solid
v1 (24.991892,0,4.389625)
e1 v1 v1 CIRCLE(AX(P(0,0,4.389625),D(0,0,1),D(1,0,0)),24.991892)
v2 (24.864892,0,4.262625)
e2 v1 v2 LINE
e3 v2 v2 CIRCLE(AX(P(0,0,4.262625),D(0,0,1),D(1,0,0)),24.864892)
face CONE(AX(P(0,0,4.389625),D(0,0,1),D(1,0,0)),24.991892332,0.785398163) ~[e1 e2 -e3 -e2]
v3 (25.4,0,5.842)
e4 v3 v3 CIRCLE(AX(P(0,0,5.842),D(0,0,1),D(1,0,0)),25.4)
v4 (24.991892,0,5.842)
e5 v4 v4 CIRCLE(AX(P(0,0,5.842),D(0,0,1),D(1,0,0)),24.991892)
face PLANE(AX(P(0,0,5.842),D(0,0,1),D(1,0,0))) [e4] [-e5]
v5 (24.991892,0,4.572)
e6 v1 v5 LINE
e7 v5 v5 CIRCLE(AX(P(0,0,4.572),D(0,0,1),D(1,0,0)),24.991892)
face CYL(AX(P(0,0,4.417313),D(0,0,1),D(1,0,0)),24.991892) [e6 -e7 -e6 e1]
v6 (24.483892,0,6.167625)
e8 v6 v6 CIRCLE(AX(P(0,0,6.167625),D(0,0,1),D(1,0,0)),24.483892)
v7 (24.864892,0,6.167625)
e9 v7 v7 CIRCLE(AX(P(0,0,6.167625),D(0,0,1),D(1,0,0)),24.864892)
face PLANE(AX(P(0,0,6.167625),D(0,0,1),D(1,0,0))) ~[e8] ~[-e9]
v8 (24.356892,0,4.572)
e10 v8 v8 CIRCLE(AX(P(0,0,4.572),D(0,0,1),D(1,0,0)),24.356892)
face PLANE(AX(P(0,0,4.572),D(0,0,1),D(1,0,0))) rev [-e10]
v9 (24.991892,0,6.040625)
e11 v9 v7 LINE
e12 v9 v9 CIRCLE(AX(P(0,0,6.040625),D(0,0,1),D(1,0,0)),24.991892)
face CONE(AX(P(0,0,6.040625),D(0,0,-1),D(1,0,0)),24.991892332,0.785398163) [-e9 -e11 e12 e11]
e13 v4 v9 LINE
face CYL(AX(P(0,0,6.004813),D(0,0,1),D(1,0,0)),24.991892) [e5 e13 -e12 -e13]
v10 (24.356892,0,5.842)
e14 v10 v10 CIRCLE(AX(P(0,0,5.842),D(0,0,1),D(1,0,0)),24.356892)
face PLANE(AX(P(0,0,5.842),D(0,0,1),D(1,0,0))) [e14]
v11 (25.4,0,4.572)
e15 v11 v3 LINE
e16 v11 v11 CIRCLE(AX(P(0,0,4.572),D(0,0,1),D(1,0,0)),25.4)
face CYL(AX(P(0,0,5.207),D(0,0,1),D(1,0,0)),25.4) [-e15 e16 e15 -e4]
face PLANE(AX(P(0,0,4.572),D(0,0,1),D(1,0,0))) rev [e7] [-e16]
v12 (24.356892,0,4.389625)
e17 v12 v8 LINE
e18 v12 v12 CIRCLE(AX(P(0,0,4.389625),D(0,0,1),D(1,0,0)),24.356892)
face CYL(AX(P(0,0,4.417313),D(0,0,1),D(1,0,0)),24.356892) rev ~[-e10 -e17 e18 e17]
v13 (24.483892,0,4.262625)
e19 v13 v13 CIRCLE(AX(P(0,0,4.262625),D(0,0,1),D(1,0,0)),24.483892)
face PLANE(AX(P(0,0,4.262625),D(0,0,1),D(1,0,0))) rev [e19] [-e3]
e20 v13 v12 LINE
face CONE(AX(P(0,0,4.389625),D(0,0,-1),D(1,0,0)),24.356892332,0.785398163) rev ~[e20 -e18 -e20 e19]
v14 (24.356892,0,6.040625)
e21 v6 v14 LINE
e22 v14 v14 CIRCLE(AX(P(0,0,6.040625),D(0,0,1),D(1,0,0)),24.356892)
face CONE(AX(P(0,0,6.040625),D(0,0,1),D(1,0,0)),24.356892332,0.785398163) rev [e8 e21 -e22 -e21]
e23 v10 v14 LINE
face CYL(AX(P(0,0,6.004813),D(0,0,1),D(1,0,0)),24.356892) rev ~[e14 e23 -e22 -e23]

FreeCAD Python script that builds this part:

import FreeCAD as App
import Part
import Sketcher
Q = App.Units.Quantity


def edges_at(feature, points):
    """Names of the edges that pass closest to the given points."""
    edges = feature.Shape.Edges
    near = lambda p: min(range(len(edges)), key=lambda i: edges[i].distToShape(Part.Vertex(*p))[0])
    return sorted({f"Edge{near(p) + 1}" for p in points})


def add_polygon(sketch, points):
    """Adds a closed chain of lines whose ends are joined by coincident constraints."""
    first, n = sketch.GeometryCount, len(points)
    for a, b in zip(points, points[1:] + points[:1]):
        sketch.addGeometry(Part.LineSegment(App.Vector(*a, 0), App.Vector(*b, 0)), False)
    for i in range(n):
        sketch.addConstraint(Sketcher.Constraint("Coincident", first + i, 2, first + (i + 1) % n, 1))

doc = App.newDocument("Part")
body = doc.addObject("PartDesign::Body", "Body")

# Sketch on XZ plane
sketch1 = body.newObject("Sketcher::SketchObject", "Sketch")
sketch1.AttachmentSupport = (doc.getObject("XZ_Plane"), [""])
sketch1.MapMode = "FlatFace"
add_polygon(sketch1, [(0, 5.842), (0, 4.572), (24.356892, 4.572), (24.356892, 4.262625), (24.991892, 4.262625), (24.991892, 4.572), (25.4, 4.572), (25.4, 5.842), (24.991892, 5.842), (24.991892, 6.167625), (24.356892, 6.167625), (24.356892, 5.842)])  # lines 0-11
sketch1.addConstraint(Sketcher.Constraint("Vertical", 0))
sketch1.addConstraint(Sketcher.Constraint("Horizontal", 1))
sketch1.addConstraint(Sketcher.Constraint("Vertical", 2))
sketch1.addConstraint(Sketcher.Constraint("Horizontal", 3))
sketch1.addConstraint(Sketcher.Constraint("Vertical", 4))
sketch1.addConstraint(Sketcher.Constraint("Horizontal", 5))
sketch1.addConstraint(Sketcher.Constraint("Vertical", 6))
sketch1.addConstraint(Sketcher.Constraint("Horizontal", 7))
sketch1.addConstraint(Sketcher.Constraint("Vertical", 8))
sketch1.addConstraint(Sketcher.Constraint("Horizontal", 9))
sketch1.addConstraint(Sketcher.Constraint("Vertical", 10))
sketch1.addConstraint(Sketcher.Constraint("Horizontal", 11))
sketch1.addConstraint(Sketcher.Constraint("PointOnObject", 0, 2, -2))
sketch1.addConstraint(Sketcher.Constraint("Horizontal", 1, 2, 4, 2))
sketch1.addConstraint(Sketcher.Constraint("Horizontal", 7, 2, 10, 2))
sketch1.addConstraint(Sketcher.Constraint("Vertical", 4, 2, 7, 2))
sketch1.addConstraint(Sketcher.Constraint("Vertical", 2, 2, 9, 2))
sketch1.addConstraint(Sketcher.Constraint("DistanceX", -1, 1, 5, 2, Q("1 in")))
sketch1.addConstraint(Sketcher.Constraint("DistanceY", 0, 2, 0, 1, Q("0.05 in")))
sketch1.addConstraint(Sketcher.Constraint("DistanceX", 3, 1, 3, 2, Q("0.025 in")))
sketch1.addConstraint(Sketcher.Constraint("DistanceY", -1, 1, 0, 2, Q("0.18 in")))
sketch1.addConstraint(Sketcher.Constraint("DistanceX", 1, 1, 1, 2, 24.356892))
sketch1.addConstraint(Sketcher.Constraint("DistanceY", 2, 2, 2, 1, 0.309375))
sketch1.addConstraint(Sketcher.Constraint("DistanceY", 8, 1, 8, 2, 0.325625))
revolution = body.newObject("PartDesign::Revolution", "Revolution")
revolution.Profile = sketch1
revolution.ReferenceAxis = (sketch1, ["V_Axis"])
revolution.Angle = 360
doc.recompute()

chamfer = body.newObject("PartDesign::Chamfer", "Chamfer")
chamfer.Base = (revolution, edges_at(revolution, [(-24.992, 0, 6.168)]))
chamfer.Size = Q("0.005 in")
doc.recompute()

chamfer2 = body.newObject("PartDesign::Chamfer", "Chamfer001")
chamfer2.Base = (chamfer, edges_at(chamfer, [(-24.357, 0, 6.168)]))
chamfer2.Size = Q("0.005 in")
doc.recompute()

chamfer3 = body.newObject("PartDesign::Chamfer", "Chamfer002")
chamfer3.Base = (chamfer2, edges_at(chamfer2, [(-24.992, 0, 4.263)]))
chamfer3.Size = Q("0.005 in")
doc.recompute()

chamfer4 = body.newObject("PartDesign::Chamfer", "Chamfer003")
chamfer4.Base = (chamfer3, edges_at(chamfer3, [(-24.357, 0, 4.263)]))
chamfer4.Size = Q("0.005 in")

doc.recompute()
